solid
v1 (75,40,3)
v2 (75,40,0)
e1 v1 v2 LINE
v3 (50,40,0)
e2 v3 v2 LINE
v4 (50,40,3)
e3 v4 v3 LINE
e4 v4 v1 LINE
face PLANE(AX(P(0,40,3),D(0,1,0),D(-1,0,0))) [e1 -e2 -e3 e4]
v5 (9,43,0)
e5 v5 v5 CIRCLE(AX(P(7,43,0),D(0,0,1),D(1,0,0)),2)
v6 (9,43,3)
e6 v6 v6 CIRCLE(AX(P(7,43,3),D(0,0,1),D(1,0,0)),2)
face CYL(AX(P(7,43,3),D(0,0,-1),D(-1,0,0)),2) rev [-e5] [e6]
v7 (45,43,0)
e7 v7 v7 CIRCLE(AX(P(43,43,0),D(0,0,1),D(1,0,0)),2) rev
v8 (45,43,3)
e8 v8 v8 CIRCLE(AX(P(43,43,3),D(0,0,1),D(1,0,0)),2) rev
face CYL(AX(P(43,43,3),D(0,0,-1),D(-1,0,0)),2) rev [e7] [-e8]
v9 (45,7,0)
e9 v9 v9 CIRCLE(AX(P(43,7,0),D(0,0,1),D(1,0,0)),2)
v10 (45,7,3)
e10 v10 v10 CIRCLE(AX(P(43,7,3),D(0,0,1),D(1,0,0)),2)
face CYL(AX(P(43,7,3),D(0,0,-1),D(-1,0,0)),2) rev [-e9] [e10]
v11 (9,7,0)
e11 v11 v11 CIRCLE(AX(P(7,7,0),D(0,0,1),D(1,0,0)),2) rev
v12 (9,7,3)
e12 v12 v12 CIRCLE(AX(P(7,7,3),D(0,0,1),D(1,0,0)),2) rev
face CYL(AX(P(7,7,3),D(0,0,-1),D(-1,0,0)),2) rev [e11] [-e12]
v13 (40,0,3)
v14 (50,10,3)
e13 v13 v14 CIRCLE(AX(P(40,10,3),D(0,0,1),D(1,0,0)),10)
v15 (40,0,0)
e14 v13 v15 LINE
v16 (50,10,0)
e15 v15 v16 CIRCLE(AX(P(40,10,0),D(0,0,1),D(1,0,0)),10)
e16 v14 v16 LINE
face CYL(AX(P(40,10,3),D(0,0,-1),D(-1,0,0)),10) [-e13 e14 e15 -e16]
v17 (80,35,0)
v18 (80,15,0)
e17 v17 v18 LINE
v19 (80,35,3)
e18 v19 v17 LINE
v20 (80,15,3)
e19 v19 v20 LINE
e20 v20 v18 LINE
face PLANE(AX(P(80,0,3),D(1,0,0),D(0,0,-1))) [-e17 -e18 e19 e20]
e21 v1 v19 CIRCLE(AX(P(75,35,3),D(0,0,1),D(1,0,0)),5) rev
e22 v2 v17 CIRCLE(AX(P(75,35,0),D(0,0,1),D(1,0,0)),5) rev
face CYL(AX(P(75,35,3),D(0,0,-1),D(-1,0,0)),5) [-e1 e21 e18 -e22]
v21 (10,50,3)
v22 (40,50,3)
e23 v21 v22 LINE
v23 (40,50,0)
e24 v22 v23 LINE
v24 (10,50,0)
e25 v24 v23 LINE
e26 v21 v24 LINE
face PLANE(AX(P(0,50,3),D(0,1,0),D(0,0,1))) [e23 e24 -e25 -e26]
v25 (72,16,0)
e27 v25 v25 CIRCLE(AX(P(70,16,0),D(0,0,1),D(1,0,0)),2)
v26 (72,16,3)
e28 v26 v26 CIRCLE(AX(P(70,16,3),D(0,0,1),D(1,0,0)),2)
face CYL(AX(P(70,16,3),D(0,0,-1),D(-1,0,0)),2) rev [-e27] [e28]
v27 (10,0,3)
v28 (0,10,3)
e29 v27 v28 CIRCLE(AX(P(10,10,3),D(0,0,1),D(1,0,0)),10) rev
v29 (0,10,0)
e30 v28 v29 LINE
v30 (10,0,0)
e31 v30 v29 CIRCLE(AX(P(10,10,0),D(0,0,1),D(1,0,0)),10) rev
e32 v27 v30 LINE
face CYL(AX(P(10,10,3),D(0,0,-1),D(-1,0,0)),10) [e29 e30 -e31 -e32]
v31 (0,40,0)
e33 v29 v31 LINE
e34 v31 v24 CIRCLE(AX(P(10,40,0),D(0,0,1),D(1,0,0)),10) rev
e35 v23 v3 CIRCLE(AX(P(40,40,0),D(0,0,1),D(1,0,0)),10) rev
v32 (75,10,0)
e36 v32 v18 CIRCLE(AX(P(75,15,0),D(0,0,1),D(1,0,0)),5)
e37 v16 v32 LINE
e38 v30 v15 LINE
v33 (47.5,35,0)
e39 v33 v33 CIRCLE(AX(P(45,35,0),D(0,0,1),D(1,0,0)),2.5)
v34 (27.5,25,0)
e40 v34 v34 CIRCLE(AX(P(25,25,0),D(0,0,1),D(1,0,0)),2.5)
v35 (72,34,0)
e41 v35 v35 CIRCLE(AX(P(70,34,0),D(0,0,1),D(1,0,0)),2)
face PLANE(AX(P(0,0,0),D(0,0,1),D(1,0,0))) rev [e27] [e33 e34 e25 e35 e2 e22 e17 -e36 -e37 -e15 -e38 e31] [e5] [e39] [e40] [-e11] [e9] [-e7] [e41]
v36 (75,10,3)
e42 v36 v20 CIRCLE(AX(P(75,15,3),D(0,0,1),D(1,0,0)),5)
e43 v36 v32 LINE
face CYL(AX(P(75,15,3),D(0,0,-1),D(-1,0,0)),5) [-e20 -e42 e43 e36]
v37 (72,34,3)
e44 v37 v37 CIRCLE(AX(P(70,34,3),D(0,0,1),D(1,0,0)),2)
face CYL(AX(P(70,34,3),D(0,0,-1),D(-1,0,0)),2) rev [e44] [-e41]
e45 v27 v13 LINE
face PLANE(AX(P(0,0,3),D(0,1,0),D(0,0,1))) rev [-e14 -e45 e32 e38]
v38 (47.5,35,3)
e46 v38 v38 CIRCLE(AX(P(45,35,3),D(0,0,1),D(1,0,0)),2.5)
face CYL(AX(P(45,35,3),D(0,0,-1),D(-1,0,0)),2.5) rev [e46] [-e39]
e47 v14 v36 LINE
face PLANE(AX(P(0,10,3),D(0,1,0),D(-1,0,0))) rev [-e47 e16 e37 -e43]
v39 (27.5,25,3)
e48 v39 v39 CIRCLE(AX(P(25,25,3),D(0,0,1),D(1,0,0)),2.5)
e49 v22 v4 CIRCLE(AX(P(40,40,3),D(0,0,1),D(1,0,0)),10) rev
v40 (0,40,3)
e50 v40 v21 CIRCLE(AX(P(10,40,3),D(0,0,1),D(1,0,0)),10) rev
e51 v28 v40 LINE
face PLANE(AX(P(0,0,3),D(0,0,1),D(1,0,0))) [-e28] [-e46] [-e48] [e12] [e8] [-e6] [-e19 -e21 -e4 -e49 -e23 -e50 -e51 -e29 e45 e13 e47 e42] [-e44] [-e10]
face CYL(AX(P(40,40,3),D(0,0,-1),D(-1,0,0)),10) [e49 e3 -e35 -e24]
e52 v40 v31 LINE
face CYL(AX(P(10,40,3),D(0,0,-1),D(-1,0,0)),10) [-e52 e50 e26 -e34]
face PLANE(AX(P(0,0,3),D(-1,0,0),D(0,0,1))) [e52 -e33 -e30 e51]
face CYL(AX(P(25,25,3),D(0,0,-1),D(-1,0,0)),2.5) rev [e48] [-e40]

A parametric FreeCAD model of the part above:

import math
import FreeCAD as App
import Part
import Sketcher

V = App.Vector

doc = App.newDocument("Part")
body = doc.addObject("PartDesign::Body", "Body")

# Sketch on XY plane
sketch1 = doc.addObject("Sketcher::SketchObject", "Sketch")
body.addObject(sketch1)
sketch1.AttachmentSupport = (doc.XY_Plane, [""])
sketch1.MapMode = "FlatFace"
sketch1.addGeometry(Part.ArcOfCircle(Part.Circle(V(10, 40, 0), V(0, 0, 1), 10), math.radians(90), math.radians(180)), False)
sketch1.addGeometry(Part.LineSegment(V(0, 40, 0), V(0, 10, 0)), False)
sketch1.addGeometry(Part.ArcOfCircle(Part.Circle(V(10, 10, 0), V(0, 0, 1), 10), math.radians(180), math.radians(270)), False)
sketch1.addGeometry(Part.LineSegment(V(10, 0, 0), V(40, 0, 0)), False)
sketch1.addGeometry(Part.ArcOfCircle(Part.Circle(V(40, 10, 0), V(0, 0, 1), 10), math.radians(-90), math.radians(0)), False)
sketch1.addGeometry(Part.LineSegment(V(50, 10, 0), V(75, 10, 0)), False)
sketch1.addGeometry(Part.ArcOfCircle(Part.Circle(V(75, 15, 0), V(0, 0, 1), 5), math.radians(-90), math.radians(0)), False)
sketch1.addGeometry(Part.LineSegment(V(80, 15, 0), V(80, 35, 0)), False)
sketch1.addGeometry(Part.ArcOfCircle(Part.Circle(V(75, 35, 0), V(0, 0, 1), 5), math.radians(0), math.radians(90)), False)
sketch1.addGeometry(Part.LineSegment(V(75, 40, 0), V(50, 40, 0)), False)
sketch1.addGeometry(Part.ArcOfCircle(Part.Circle(V(40, 40, 0), V(0, 0, 1), 10), math.radians(0), math.radians(90)), False)
sketch1.addGeometry(Part.LineSegment(V(40, 50, 0), V(10, 50, 0)), False)
sketch1.addGeometry(Part.Circle(V(43, 7, 0), V(0, 0, 1), 2), False)
sketch1.addGeometry(Part.Circle(V(70, 16, 0), V(0, 0, 1), 2), False)
sketch1.addGeometry(Part.Circle(V(7, 7, 0), V(0, 0, 1), 2), False)
sketch1.addGeometry(Part.Circle(V(70, 34, 0), V(0, 0, 1), 2), False)
sketch1.addGeometry(Part.Circle(V(45, 35, 0), V(0, 0, 1), 2.5), False)
sketch1.addGeometry(Part.Circle(V(43, 43, 0), V(0, 0, 1), 2), False)
sketch1.addGeometry(Part.Circle(V(25, 25, 0), V(0, 0, 1), 2.5), False)
sketch1.addGeometry(Part.Circle(V(7, 43, 0), V(0, 0, 1), 2), False)
sketch1.addConstraint(Sketcher.Constraint("Tangent", 0, 2, 1, 1))
sketch1.addConstraint(Sketcher.Constraint("Tangent", 1, 2, 2, 1))
sketch1.addConstraint(Sketcher.Constraint("Tangent", 2, 2, 3, 1))
sketch1.addConstraint(Sketcher.Constraint("Tangent", 3, 2, 4, 1))
sketch1.addConstraint(Sketcher.Constraint("Coincident", 4, 2, 5, 1))
sketch1.addConstraint(Sketcher.Constraint("Tangent", 5, 2, 6, 1))
sketch1.addConstraint(Sketcher.Constraint("Tangent", 6, 2, 7, 1))
sketch1.addConstraint(Sketcher.Constraint("Tangent", 7, 2, 8, 1))
sketch1.addConstraint(Sketcher.Constraint("Tangent", 8, 2, 9, 1))
sketch1.addConstraint(Sketcher.Constraint("Coincident", 9, 2, 10, 1))
sketch1.addConstraint(Sketcher.Constraint("Tangent", 10, 2, 11, 1))
sketch1.addConstraint(Sketcher.Constraint("Tangent", 11, 2, 0, 1))
sketch1.addConstraint(Sketcher.Constraint("Vertical", 1))
sketch1.addConstraint(Sketcher.Constraint("Horizontal", 3))
sketch1.addConstraint(Sketcher.Constraint("Horizontal", 5))
sketch1.addConstraint(Sketcher.Constraint("Vertical", 7))
sketch1.addConstraint(Sketcher.Constraint("Horizontal", 9))
sketch1.addConstraint(Sketcher.Constraint("Horizontal", 11))
sketch1.addConstraint(Sketcher.Constraint("Equal", 0, 2))
sketch1.addConstraint(Sketcher.Constraint("Equal", 2, 4))
sketch1.addConstraint(Sketcher.Constraint("Equal", 6, 8))
sketch1.addConstraint(Sketcher.Constraint("Equal", 4, 10))
sketch1.addConstraint(Sketcher.Constraint("Equal", 12, 13))
sketch1.addConstraint(Sketcher.Constraint("Equal", 13, 14))
sketch1.addConstraint(Sketcher.Constraint("Equal", 14, 15))
sketch1.addConstraint(Sketcher.Constraint("Equal", 15, 17))
sketch1.addConstraint(Sketcher.Constraint("Equal", 16, 18))
sketch1.addConstraint(Sketcher.Constraint("Equal", 17, 19))
sketch1.addConstraint(Sketcher.Constraint("PointOnObject", 0, 2, -2))
sketch1.addConstraint(Sketcher.Constraint("PointOnObject", 2, 2, -1))
sketch1.addConstraint(Sketcher.Constraint("Horizontal", 12, 3, 14, 3))
sketch1.addConstraint(Sketcher.Constraint("Horizontal", 8, 3, 16, 3))
sketch1.addConstraint(Sketcher.Constraint("Horizontal", 17, 3, 19, 3))
sketch1.addConstraint(Sketcher.Constraint("Horizontal", 1, 2, 4, 2))
sketch1.addConstraint(Sketcher.Constraint("Horizontal", 0, 2, 8, 2))
sketch1.addConstraint(Sketcher.Constraint("Vertical", 4, 3, 10, 3))
sketch1.addConstraint(Sketcher.Constraint("Vertical", 13, 3, 15, 3))
sketch1.addConstraint(Sketcher.Constraint("Vertical", 12, 3, 17, 3))
sketch1.addConstraint(Sketcher.Constraint("Vertical", 14, 3, 19, 3))
sketch1.addConstraint(Sketcher.Constraint("Equal", 11, 1))
sketch1.addConstraint(Sketcher.Constraint("Diameter", 12, 4.0))
sketch1.addConstraint(Sketcher.Constraint("Diameter", 16, 5.0))
sketch1.addConstraint(Sketcher.Constraint("Radius", 0, 10.0))
sketch1.addConstraint(Sketcher.Constraint("Radius", 6, 5.0))
sketch1.addConstraint(Sketcher.Constraint("DistanceX", 3, 1, 3, 2, 30.0))
sketch1.addConstraint(Sketcher.Constraint("DistanceX", 5, 1, 5, 2, 25.0))
sketch1.addConstraint(Sketcher.Constraint("DistanceX", -1, 1, 12, 3, 43.0))
sketch1.addConstraint(Sketcher.Constraint("DistanceY", -1, 1, 12, 3, 7.0))
sketch1.addConstraint(Sketcher.Constraint("DistanceX", -1, 1, 13, 3, 70.0))
sketch1.addConstraint(Sketcher.Constraint("DistanceY", -1, 1, 13, 3, 16.0))
sketch1.addConstraint(Sketcher.Constraint("DistanceX", -1, 1, 14, 3, 7.0))
sketch1.addConstraint(Sketcher.Constraint("DistanceY", -1, 1, 15, 3, 34.0))
sketch1.addConstraint(Sketcher.Constraint("DistanceX", -1, 1, 16, 3, 45.0))
sketch1.addConstraint(Sketcher.Constraint("DistanceY", -1, 1, 17, 3, 43.0))
sketch1.addConstraint(Sketcher.Constraint("DistanceX", -1, 1, 18, 3, 25.0))
sketch1.addConstraint(Sketcher.Constraint("DistanceY", -1, 1, 18, 3, 25.0))
pad1 = doc.addObject("PartDesign::Pad", "Pad")
body.addObject(pad1)
pad1.Profile = sketch1
pad1.Length = 3

doc.recompute()
